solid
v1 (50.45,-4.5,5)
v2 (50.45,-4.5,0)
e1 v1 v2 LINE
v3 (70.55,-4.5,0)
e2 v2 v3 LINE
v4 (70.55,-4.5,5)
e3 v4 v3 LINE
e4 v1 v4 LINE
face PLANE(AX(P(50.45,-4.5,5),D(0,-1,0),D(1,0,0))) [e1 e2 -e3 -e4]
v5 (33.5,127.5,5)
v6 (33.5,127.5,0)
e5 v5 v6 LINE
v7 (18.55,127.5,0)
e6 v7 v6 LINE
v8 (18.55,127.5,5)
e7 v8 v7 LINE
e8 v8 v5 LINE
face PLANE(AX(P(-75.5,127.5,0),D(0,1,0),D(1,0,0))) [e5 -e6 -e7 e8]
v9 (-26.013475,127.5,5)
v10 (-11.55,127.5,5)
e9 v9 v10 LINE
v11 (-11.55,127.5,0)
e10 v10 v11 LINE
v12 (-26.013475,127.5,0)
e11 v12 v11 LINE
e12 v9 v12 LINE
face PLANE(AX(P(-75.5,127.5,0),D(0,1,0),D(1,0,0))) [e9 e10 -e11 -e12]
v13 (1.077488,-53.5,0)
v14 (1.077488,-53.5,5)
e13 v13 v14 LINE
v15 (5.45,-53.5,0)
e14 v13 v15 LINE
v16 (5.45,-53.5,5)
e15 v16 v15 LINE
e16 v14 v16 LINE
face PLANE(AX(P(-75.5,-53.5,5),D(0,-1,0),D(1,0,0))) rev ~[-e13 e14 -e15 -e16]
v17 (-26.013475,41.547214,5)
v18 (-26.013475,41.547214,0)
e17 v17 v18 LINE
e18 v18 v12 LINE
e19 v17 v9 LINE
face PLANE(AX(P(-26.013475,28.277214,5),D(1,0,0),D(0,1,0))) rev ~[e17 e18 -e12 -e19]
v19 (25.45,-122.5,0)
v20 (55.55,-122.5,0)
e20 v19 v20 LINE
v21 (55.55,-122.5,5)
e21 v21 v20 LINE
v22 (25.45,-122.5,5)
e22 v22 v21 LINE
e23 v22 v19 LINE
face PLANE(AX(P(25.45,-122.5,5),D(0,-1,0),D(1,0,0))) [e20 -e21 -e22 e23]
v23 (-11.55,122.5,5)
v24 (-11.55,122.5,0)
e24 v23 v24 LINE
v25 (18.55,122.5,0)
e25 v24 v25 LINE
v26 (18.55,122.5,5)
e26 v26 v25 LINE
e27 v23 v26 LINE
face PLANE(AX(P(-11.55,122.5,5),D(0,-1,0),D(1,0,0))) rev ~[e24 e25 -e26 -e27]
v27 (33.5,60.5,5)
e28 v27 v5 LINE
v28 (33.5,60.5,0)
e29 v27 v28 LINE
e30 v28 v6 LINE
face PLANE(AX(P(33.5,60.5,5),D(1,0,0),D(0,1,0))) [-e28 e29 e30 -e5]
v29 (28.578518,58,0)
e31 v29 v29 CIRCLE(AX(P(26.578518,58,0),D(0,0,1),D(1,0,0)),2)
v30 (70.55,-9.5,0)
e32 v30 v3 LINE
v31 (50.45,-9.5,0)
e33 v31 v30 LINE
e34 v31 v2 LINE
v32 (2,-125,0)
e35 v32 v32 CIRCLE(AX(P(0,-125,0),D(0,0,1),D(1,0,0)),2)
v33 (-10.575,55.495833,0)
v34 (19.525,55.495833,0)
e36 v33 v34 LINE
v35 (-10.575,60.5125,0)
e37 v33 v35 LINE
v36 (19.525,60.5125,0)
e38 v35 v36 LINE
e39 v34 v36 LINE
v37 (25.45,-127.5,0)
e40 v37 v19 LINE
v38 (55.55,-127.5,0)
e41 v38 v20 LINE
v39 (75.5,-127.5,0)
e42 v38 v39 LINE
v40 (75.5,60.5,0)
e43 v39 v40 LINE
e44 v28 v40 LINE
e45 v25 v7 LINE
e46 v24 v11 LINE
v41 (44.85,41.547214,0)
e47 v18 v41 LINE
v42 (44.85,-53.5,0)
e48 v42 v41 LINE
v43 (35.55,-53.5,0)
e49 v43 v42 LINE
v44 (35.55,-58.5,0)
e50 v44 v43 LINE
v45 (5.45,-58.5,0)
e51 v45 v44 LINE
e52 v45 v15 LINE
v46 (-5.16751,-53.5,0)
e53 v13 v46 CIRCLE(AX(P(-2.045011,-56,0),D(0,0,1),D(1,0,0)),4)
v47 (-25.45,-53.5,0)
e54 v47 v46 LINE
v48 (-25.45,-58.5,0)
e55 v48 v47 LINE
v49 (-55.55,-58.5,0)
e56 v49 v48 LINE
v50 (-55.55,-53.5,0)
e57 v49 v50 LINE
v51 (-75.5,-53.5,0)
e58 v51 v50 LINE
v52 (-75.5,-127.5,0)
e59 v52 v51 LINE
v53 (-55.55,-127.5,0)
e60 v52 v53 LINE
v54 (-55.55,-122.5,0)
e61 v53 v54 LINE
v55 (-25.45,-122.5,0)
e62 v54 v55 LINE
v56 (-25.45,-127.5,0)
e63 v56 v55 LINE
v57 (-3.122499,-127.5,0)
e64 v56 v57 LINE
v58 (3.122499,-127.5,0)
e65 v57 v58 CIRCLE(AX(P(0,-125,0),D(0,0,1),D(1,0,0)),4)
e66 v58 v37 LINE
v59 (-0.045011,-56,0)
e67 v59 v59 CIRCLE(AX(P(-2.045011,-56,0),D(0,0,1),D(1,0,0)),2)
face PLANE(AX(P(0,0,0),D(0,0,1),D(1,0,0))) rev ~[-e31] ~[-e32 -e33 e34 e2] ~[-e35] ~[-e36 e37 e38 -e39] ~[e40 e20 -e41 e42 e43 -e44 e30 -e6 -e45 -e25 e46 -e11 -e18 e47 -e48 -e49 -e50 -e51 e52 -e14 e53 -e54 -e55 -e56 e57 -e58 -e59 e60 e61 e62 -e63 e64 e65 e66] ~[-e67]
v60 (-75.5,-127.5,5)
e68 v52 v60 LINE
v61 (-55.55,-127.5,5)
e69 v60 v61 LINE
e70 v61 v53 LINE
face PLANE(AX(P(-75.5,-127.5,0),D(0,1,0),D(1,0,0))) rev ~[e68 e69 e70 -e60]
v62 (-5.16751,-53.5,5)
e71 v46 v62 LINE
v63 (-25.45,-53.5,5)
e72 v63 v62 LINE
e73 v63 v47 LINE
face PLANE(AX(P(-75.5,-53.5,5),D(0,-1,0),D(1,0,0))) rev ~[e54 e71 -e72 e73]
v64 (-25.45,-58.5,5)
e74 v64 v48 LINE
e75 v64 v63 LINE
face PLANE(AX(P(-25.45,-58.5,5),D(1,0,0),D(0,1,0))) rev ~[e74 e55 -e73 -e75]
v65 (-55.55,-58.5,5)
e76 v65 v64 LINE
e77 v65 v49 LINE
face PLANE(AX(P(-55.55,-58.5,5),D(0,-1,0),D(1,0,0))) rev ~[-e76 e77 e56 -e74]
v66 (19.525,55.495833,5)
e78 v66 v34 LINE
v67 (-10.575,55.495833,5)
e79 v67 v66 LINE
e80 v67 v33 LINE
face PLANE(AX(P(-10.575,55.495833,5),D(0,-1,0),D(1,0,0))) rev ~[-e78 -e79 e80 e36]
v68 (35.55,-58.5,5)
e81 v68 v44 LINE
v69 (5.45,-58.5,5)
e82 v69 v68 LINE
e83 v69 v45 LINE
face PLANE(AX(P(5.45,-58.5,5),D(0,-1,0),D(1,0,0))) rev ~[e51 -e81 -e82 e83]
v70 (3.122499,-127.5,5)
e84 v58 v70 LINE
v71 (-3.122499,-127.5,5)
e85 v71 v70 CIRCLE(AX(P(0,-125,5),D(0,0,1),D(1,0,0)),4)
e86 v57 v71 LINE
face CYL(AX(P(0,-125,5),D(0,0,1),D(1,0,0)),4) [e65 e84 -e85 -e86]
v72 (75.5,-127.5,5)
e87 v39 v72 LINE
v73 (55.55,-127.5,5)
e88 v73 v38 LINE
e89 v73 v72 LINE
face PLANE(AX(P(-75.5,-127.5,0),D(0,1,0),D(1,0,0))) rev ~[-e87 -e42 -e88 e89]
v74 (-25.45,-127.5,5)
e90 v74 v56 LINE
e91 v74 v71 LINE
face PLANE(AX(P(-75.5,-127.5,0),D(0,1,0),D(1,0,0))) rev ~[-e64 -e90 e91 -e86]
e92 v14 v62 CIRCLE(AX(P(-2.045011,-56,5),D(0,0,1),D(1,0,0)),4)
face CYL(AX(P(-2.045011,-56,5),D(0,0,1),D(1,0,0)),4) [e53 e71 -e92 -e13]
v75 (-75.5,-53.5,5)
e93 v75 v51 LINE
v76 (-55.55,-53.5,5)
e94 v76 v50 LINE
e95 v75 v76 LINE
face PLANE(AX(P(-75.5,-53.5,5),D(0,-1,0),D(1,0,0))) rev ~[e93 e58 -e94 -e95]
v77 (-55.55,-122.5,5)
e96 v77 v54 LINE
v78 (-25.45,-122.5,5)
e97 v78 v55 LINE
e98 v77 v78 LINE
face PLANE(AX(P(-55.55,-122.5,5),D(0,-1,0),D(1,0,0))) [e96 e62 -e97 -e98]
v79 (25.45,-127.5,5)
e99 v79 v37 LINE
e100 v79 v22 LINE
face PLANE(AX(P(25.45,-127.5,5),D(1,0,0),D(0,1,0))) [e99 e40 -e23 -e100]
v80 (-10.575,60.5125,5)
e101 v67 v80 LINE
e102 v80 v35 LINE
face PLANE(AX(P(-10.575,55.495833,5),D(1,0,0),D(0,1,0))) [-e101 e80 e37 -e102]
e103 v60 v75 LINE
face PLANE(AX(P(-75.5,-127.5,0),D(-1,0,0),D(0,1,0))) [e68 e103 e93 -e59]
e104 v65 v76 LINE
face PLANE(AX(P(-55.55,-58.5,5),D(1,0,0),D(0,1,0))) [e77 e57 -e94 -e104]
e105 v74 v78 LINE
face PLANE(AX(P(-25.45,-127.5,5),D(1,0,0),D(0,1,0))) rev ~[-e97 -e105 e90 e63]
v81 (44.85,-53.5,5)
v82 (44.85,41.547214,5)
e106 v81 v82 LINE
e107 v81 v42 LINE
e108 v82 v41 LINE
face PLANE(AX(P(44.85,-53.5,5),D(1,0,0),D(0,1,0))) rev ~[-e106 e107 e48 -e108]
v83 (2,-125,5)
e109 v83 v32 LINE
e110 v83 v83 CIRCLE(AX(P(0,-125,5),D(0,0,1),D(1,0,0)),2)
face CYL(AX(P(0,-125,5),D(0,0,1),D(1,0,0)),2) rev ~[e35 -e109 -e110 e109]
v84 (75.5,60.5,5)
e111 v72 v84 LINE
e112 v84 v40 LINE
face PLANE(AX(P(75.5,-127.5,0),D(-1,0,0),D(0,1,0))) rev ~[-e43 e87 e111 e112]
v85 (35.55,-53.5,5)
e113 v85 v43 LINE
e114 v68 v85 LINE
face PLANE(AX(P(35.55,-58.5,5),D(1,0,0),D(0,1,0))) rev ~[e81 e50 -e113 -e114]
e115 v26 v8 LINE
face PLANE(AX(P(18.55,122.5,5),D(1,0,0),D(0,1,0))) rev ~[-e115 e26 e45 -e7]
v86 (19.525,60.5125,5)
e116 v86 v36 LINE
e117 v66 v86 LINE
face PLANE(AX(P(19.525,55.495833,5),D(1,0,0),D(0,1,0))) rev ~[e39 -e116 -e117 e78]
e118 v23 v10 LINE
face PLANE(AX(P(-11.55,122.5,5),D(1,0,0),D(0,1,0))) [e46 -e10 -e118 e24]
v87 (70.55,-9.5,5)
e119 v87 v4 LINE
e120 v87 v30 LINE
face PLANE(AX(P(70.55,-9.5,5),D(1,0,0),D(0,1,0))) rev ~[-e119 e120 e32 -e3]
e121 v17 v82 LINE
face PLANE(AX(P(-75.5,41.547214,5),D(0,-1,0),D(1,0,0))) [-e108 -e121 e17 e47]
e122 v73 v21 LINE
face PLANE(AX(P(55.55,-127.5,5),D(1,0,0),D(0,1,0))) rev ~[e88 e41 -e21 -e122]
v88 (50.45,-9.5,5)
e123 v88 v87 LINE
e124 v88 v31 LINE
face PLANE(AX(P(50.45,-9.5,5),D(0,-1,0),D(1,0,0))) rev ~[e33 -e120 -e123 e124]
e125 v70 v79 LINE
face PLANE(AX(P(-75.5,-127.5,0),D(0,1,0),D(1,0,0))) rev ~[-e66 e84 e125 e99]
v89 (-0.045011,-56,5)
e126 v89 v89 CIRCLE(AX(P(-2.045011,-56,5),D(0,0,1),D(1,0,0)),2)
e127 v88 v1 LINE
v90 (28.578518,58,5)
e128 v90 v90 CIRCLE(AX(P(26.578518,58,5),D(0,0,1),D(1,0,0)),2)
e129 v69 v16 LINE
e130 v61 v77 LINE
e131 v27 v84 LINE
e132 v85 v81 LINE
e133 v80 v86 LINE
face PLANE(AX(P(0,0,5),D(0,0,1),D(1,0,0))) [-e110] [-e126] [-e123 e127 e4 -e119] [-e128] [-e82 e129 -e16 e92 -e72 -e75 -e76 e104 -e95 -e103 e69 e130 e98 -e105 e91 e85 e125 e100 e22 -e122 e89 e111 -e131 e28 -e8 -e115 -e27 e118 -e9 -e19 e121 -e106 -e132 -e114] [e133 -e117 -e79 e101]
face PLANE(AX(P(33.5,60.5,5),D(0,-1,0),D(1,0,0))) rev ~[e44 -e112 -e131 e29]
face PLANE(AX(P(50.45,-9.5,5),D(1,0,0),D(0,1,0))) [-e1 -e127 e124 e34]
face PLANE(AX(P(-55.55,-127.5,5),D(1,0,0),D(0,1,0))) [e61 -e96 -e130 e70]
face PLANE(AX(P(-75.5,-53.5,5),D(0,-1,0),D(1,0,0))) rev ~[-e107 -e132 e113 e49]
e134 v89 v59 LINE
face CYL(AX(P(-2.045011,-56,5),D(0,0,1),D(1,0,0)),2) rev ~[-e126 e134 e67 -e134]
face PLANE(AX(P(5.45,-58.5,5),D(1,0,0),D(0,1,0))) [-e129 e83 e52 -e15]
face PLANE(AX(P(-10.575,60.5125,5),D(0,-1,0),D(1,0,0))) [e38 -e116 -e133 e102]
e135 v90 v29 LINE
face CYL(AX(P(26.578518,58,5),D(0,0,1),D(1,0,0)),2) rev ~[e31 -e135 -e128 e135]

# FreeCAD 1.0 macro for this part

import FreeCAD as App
import Part
import Sketcher

doc = App.newDocument("Part")
body = doc.addObject("PartDesign::Body", "Body")

# Sketch on XY plane
sketch1 = body.newObject("Sketcher::SketchObject", "Sketch")
sketch1.AttachmentSupport = (doc.getObject("XY_Plane"), [""])
sketch1.MapMode = "FlatFace"
sketch1.addGeometry([
    Part.LineSegment(App.Vector(-76, 128, 0), App.Vector(-76, -128, 0)),
    Part.LineSegment(App.Vector(-76, -128, 0), App.Vector(76, -128, 0)),
    Part.LineSegment(App.Vector(76, -128, 0), App.Vector(76, 128, 0)),
    Part.LineSegment(App.Vector(76, 128, 0), App.Vector(-76, 128, 0)),
], False)
sketch1.addConstraint([
    Sketcher.Constraint("Coincident", 0, 2, 1, 1),
    Sketcher.Constraint("Coincident", 1, 2, 2, 1),
    Sketcher.Constraint("Coincident", 2, 2, 3, 1),
    Sketcher.Constraint("Coincident", 3, 2, 0, 1),
    Sketcher.Constraint("Vertical", 0),
    Sketcher.Constraint("Horizontal", 1),
    Sketcher.Constraint("Vertical", 2),
    Sketcher.Constraint("Horizontal", 3),
    Sketcher.Constraint("Symmetric", 0, 2, 2, 2, -1, 1),
    Sketcher.Constraint("DistanceX", 1, 1, 1, 2, 151.0),
    Sketcher.Constraint("DistanceY", 0, 2, 0, 1, 255.0),
])
pad1 = body.newObject("PartDesign::Pad", "Pad")
pad1.Profile = sketch1
pad1.Length = 5

# Sketch on XY plane
sketch2 = body.newObject("Sketcher::SketchObject", "Sketch001")
sketch2.AttachmentSupport = (doc.getObject("XY_Plane"), [""])
sketch2.MapMode = "FlatFace"
sketch2.AttachmentOffset = App.Placement(App.Vector(0, 0, 5), App.Rotation())
sketch2.addGeometry([
    Part.LineSegment(App.Vector(-76, 128, 0), App.Vector(-76, 28, 0)),
    Part.LineSegment(App.Vector(-76, 28, 0), App.Vector(-26, 28, 0)),
    Part.LineSegment(App.Vector(-26, 28, 0), App.Vector(-26, 128, 0)),
    Part.LineSegment(App.Vector(-26, 128, 0), App.Vector(-76, 128, 0)),
], False)
sketch2.addConstraint([
    Sketcher.Constraint("Coincident", 0, 2, 1, 1),
    Sketcher.Constraint("Coincident", 1, 2, 2, 1),
    Sketcher.Constraint("Coincident", 2, 2, 3, 1),
    Sketcher.Constraint("Coincident", 3, 2, 0, 1),
    Sketcher.Constraint("Vertical", 0),
    Sketcher.Constraint("Horizontal", 1),
    Sketcher.Constraint("Vertical", 2),
    Sketcher.Constraint("Horizontal", 3),
    Sketcher.Constraint("DistanceX", 0, 2, -1, 1, 75.5),
    Sketcher.Constraint("DistanceY", -1, 1, 2, 2, 127.5),
    Sketcher.Constraint("DistanceX", 1, 1, 1, 2, 49.486525),
    Sketcher.Constraint("DistanceY", 0, 2, 0, 1, 99.222786),
])
pocket1 = body.newObject("PartDesign::Pocket", "Pocket")
pocket1.Profile = sketch2
pocket1.Length = 5

# Sketch on XY plane
sketch3 = body.newObject("Sketcher::SketchObject", "Sketch002")
sketch3.AttachmentSupport = (doc.getObject("XY_Plane"), [""])
sketch3.MapMode = "FlatFace"
sketch3.AttachmentOffset = App.Placement(App.Vector(0, 0, 5), App.Rotation())
sketch3.addGeometry([
    Part.LineSegment(App.Vector(34, 128, 0), App.Vector(34, 60, 0)),
    Part.LineSegment(App.Vector(34, 60, 0), App.Vector(76, 60, 0)),
    Part.LineSegment(App.Vector(76, 60, 0), App.Vector(76, 128, 0)),
    Part.LineSegment(App.Vector(76, 128, 0), App.Vector(34, 128, 0)),
], False)
sketch3.addConstraint([
    Sketcher.Constraint("Coincident", 0, 2, 1, 1),
    Sketcher.Constraint("Coincident", 1, 2, 2, 1),
    Sketcher.Constraint("Coincident", 2, 2, 3, 1),
    Sketcher.Constraint("Coincident", 3, 2, 0, 1),
    Sketcher.Constraint("Vertical", 0),
    Sketcher.Constraint("Horizontal", 1),
    Sketcher.Constraint("Vertical", 2),
    Sketcher.Constraint("Horizontal", 3),
    Sketcher.Constraint("DistanceX", 1, 1, 1, 2, 42.0),
    Sketcher.Constraint("DistanceY", 0, 2, 0, 1, 67.0),
    Sketcher.Constraint("DistanceX", -1, 1, 0, 2, 33.5),
    Sketcher.Constraint("DistanceY", -1, 1, 0, 2, 60.5),
])
pocket2 = body.newObject("PartDesign::Pocket", "Pocket001")
pocket2.Profile = sketch3
pocket2.Length = 5

# Sketch on XY plane
sketch4 = body.newObject("Sketcher::SketchObject", "Sketch003")
sketch4.AttachmentSupport = (doc.getObject("XY_Plane"), [""])
sketch4.MapMode = "FlatFace"
sketch4.AttachmentOffset = App.Placement(App.Vector(0, 0, 5), App.Rotation())
sketch4.addGeometry([
    Part.LineSegment(App.Vector(-76, 42, 0), App.Vector(-76, -53, 0)),
    Part.LineSegment(App.Vector(-76, -53, 0), App.Vector(45, -53, 0)),
    Part.LineSegment(App.Vector(45, -53, 0), App.Vector(45, 42, 0)),
    Part.LineSegment(App.Vector(45, 42, 0), App.Vector(-76, 42, 0)),
], False)
sketch4.addConstraint([
    Sketcher.Constraint("Coincident", 0, 2, 1, 1),
    Sketcher.Constraint("Coincident", 1, 2, 2, 1),
    Sketcher.Constraint("Coincident", 2, 2, 3, 1),
    Sketcher.Constraint("Coincident", 3, 2, 0, 1),
    Sketcher.Constraint("Vertical", 0),
    Sketcher.Constraint("Horizontal", 1),
    Sketcher.Constraint("Vertical", 2),
    Sketcher.Constraint("Horizontal", 3),
    Sketcher.Constraint("DistanceX", 1, 1, 1, 2, 120.35),
    Sketcher.Constraint("DistanceX", 0, 2, -1, 1, 75.5),
    Sketcher.Constraint("DistanceY", 0, 2, -1, 1, 53.5),
    Sketcher.Constraint("DistanceY", 0, 2, 0, 1, 95.047214),
])
pocket3 = body.newObject("PartDesign::Pocket", "Pocket002")
pocket3.Profile = sketch4
pocket3.Length = 5

# Sketch on XY plane
sketch5 = body.newObject("Sketcher::SketchObject", "Sketch004")
sketch5.AttachmentSupport = (doc.getObject("XY_Plane"), [""])
sketch5.MapMode = "FlatFace"
sketch5.AttachmentOffset = App.Placement(App.Vector(0, 0, 5), App.Rotation())
sketch5.addGeometry([
    Part.LineSegment(App.Vector(25, -122, 0), App.Vector(25, -128, 0)),  # 0
    Part.LineSegment(App.Vector(25, -128, 0), App.Vector(56, -128, 0)),  # 1
    Part.LineSegment(App.Vector(56, -128, 0), App.Vector(56, -122, 0)),  # 2
    Part.LineSegment(App.Vector(56, -122, 0), App.Vector(25, -122, 0)),  # 3
    Part.LineSegment(App.Vector(-56, -122, 0), App.Vector(-56, -128, 0)),  # 4
    Part.LineSegment(App.Vector(-56, -128, 0), App.Vector(-25, -128, 0)),  # 5
    Part.LineSegment(App.Vector(-25, -128, 0), App.Vector(-25, -122, 0)),  # 6
    Part.LineSegment(App.Vector(-25, -122, 0), App.Vector(-56, -122, 0)),  # 7
    Part.LineSegment(App.Vector(5, -54, 0), App.Vector(5, -58, 0)),  # 8
    Part.LineSegment(App.Vector(5, -58, 0), App.Vector(36, -58, 0)),  # 9
    Part.LineSegment(App.Vector(36, -58, 0), App.Vector(36, -54, 0)),  # 10
    Part.LineSegment(App.Vector(36, -54, 0), App.Vector(5, -54, 0)),  # 11
    Part.LineSegment(App.Vector(-56, -54, 0), App.Vector(-56, -58, 0)),  # 12
    Part.LineSegment(App.Vector(-56, -58, 0), App.Vector(-25, -58, 0)),  # 13
    Part.LineSegment(App.Vector(-25, -58, 0), App.Vector(-25, -54, 0)),  # 14
    Part.LineSegment(App.Vector(-25, -54, 0), App.Vector(-56, -54, 0)),  # 15
    Part.LineSegment(App.Vector(50, -4, 0), App.Vector(50, -10, 0)),  # 16
    Part.LineSegment(App.Vector(50, -10, 0), App.Vector(71, -10, 0)),  # 17
    Part.LineSegment(App.Vector(71, -10, 0), App.Vector(71, -4, 0)),  # 18
    Part.LineSegment(App.Vector(71, -4, 0), App.Vector(50, -4, 0)),  # 19
    Part.LineSegment(App.Vector(-11, 61, 0), App.Vector(-11, 55, 0)),  # 20
    Part.LineSegment(App.Vector(-11, 55, 0), App.Vector(20, 55, 0)),  # 21
    Part.LineSegment(App.Vector(20, 55, 0), App.Vector(20, 61, 0)),  # 22
    Part.LineSegment(App.Vector(20, 61, 0), App.Vector(-11, 61, 0)),  # 23
    Part.LineSegment(App.Vector(-12, 128, 0), App.Vector(-12, 122, 0)),  # 24
    Part.LineSegment(App.Vector(-12, 122, 0), App.Vector(19, 122, 0)),  # 25
    Part.LineSegment(App.Vector(19, 122, 0), App.Vector(19, 128, 0)),  # 26
    Part.LineSegment(App.Vector(19, 128, 0), App.Vector(-12, 128, 0)),  # 27
], False)
sketch5.addConstraint([
    Sketcher.Constraint("Coincident", 0, 2, 1, 1),
    Sketcher.Constraint("Coincident", 1, 2, 2, 1),
    Sketcher.Constraint("Coincident", 2, 2, 3, 1),
    Sketcher.Constraint("Coincident", 3, 2, 0, 1),
    Sketcher.Constraint("Coincident", 4, 2, 5, 1),
    Sketcher.Constraint("Coincident", 5, 2, 6, 1),
    Sketcher.Constraint("Coincident", 6, 2, 7, 1),
    Sketcher.Constraint("Coincident", 7, 2, 4, 1),
    Sketcher.Constraint("Coincident", 8, 2, 9, 1),
    Sketcher.Constraint("Coincident", 9, 2, 10, 1),
    Sketcher.Constraint("Coincident", 10, 2, 11, 1),
    Sketcher.Constraint("Coincident", 11, 2, 8, 1),
    Sketcher.Constraint("Coincident", 12, 2, 13, 1),
    Sketcher.Constraint("Coincident", 13, 2, 14, 1),
    Sketcher.Constraint("Coincident", 14, 2, 15, 1),
    Sketcher.Constraint("Coincident", 15, 2, 12, 1),
    Sketcher.Constraint("Coincident", 16, 2, 17, 1),
    Sketcher.Constraint("Coincident", 17, 2, 18, 1),
    Sketcher.Constraint("Coincident", 18, 2, 19, 1),
    Sketcher.Constraint("Coincident", 19, 2, 16, 1),
    Sketcher.Constraint("Coincident", 20, 2, 21, 1),
    Sketcher.Constraint("Coincident", 21, 2, 22, 1),
    Sketcher.Constraint("Coincident", 22, 2, 23, 1),
    Sketcher.Constraint("Coincident", 23, 2, 20, 1),
    Sketcher.Constraint("Coincident", 24, 2, 25, 1),
    Sketcher.Constraint("Coincident", 25, 2, 26, 1),
    Sketcher.Constraint("Coincident", 26, 2, 27, 1),
    Sketcher.Constraint("Coincident", 27, 2, 24, 1),
    Sketcher.Constraint("Vertical", 0),
    Sketcher.Constraint("Horizontal", 1),
    Sketcher.Constraint("Vertical", 2),
    Sketcher.Constraint("Horizontal", 3),
    Sketcher.Constraint("Vertical", 4),
    Sketcher.Constraint("Horizontal", 5),
    Sketcher.Constraint("Vertical", 6),
    Sketcher.Constraint("Horizontal", 7),
    Sketcher.Constraint("Vertical", 8),
    Sketcher.Constraint("Horizontal", 9),
    Sketcher.Constraint("Vertical", 10),
    Sketcher.Constraint("Horizontal", 11),
    Sketcher.Constraint("Vertical", 12),
    Sketcher.Constraint("Horizontal", 13),
    Sketcher.Constraint("Vertical", 14),
    Sketcher.Constraint("Horizontal", 15),
    Sketcher.Constraint("Vertical", 16),
    Sketcher.Constraint("Horizontal", 17),
    Sketcher.Constraint("Vertical", 18),
    Sketcher.Constraint("Horizontal", 19),
    Sketcher.Constraint("Vertical", 20),
    Sketcher.Constraint("Horizontal", 21),
    Sketcher.Constraint("Vertical", 22),
    Sketcher.Constraint("Horizontal", 23),
    Sketcher.Constraint("Vertical", 24),
    Sketcher.Constraint("Horizontal", 25),
    Sketcher.Constraint("Vertical", 26),
    Sketcher.Constraint("Horizontal", 27),
    Sketcher.Constraint("Symmetric", 1, 2, 4, 2, -2),
    Sketcher.Constraint("Symmetric", 3, 2, 6, 2, -2),
    Sketcher.Constraint("Horizontal", 9, 2, 12, 2),
    Sketcher.Constraint("Horizontal", 11, 2, 14, 2),
    Sketcher.Constraint("Vertical", 7, 2, 12, 2),
    Sketcher.Constraint("Vertical", 6, 2, 13, 2),
    Sketcher.Constraint("Equal", 7, 9),
    Sketcher.Constraint("Equal", 15, 21),
    Sketcher.Constraint("Equal", 23, 25),
    Sketcher.Constraint("Equal", 6, 8),
    Sketcher.Constraint("Equal", 14, 16),
    Sketcher.Constraint("Equal", 18, 24),
    Sketcher.Constraint("DistanceY", 0, 2, 0, 1, 5.0),
    Sketcher.Constraint("DistanceX", 1, 1, 1, 2, 30.1),
    Sketcher.Constraint("DistanceX", 17, 1, 17, 2, 20.1),
    Sketcher.Constraint("DistanceX", 4, 2, 0, 2, 81.0),
    Sketcher.Constraint("DistanceX", 8, 2, 3, 2, 20.0),
    Sketcher.Constraint("DistanceY", 3, 2, 8, 2, 64.0),
    Sketcher.Constraint("DistanceY", 10, 2, 16, 2, 44.0),
    Sketcher.Constraint("DistanceX", 11, 2, 16, 2, 45.0),
    Sketcher.Constraint("DistanceX", 24, 2, 19, 2, 62.0),
    Sketcher.Constraint("DistanceY", 19, 2, 24, 2, 127.0),
    Sketcher.Constraint("DistanceY", 0, 2, -1, 1, 127.5),
    Sketcher.Constraint("DistanceX", 20, 2, -1, 1, 10.575),
    Sketcher.Constraint("DistanceY", -1, 1, 22, 2, 60.5125),
    Sketcher.Constraint("DistanceY", 20, 2, 20, 1, 5.016667),
])
pocket4 = body.newObject("PartDesign::Pocket", "Pocket003")
pocket4.Profile = sketch5
pocket4.Length = 5

# Sketch on XY plane
sketch6 = body.newObject("Sketcher::SketchObject", "Sketch005")
sketch6.AttachmentSupport = (doc.getObject("XY_Plane"), [""])
sketch6.MapMode = "FlatFace"
sketch6.AttachmentOffset = App.Placement(App.Vector(0, 0, 5), App.Rotation())
sketch6.addGeometry([
    Part.Circle(App.Vector(0, -125, 0), App.Vector(0, 0, 1), 2),
    Part.Circle(App.Vector(-2, -56, 0), App.Vector(0, 0, 1), 2),
    Part.Circle(App.Vector(26.6, 58, 0), App.Vector(0, 0, 1), 2),
], False)
sketch6.addConstraint([
    Sketcher.Constraint("Equal", 0, 1),
    Sketcher.Constraint("Equal", 1, 2),
    Sketcher.Constraint("PointOnObject", 0, 3, -2),
    Sketcher.Constraint("Diameter", 0, 4.0),
    Sketcher.Constraint("DistanceY", 0, 3, -1, 1, 125.0),
    Sketcher.Constraint("DistanceY", 1, 3, -1, 1, 56.0),
    Sketcher.Constraint("DistanceY", -1, 1, 2, 3, 58.0),
    Sketcher.Constraint("DistanceX", 1, 3, -1, 1, 2.045011),
    Sketcher.Constraint("DistanceX", 1, 3, 2, 3, 28.623529),
])
pocket5 = body.newObject("PartDesign::Pocket", "Pocket004")
pocket5.Profile = sketch6
pocket5.Length = 10

# Sketch on XY plane
sketch7 = body.newObject("Sketcher::SketchObject", "Sketch006")
sketch7.AttachmentSupport = (doc.getObject("XY_Plane"), [""])
sketch7.MapMode = "FlatFace"
sketch7.AttachmentOffset = App.Placement(App.Vector(0, 0, 5), App.Rotation())
sketch7.addGeometry([
    Part.Circle(App.Vector(0, -125, 0), App.Vector(0, 0, 1), 4),
    Part.Circle(App.Vector(0, -125, 0), App.Vector(0, 0, 1), 2),
    Part.Circle(App.Vector(-2, -56, 0), App.Vector(0, 0, 1), 4),
    Part.Circle(App.Vector(-2, -56, 0), App.Vector(0, 0, 1), 2),
], False)
sketch7.addConstraint([
    Sketcher.Constraint("Coincident", 1, 3, 0, 3),
    Sketcher.Constraint("Coincident", 3, 3, 2, 3),
    Sketcher.Constraint("Equal", 0, 2),
    Sketcher.Constraint("Equal", 1, 3),
    Sketcher.Constraint("PointOnObject", 0, 3, -2),
    Sketcher.Constraint("Diameter", 0, 8.0),
    Sketcher.Constraint("Diameter", 1, 4.0),
    Sketcher.Constraint("DistanceY", 0, 3, -1, 1, 125.0),
    Sketcher.Constraint("DistanceY", 2, 3, -1, 1, 56.0),
    Sketcher.Constraint("DistanceX", 2, 3, -1, 1, 2.045011),
])
pad2 = body.newObject("PartDesign::Pad", "Pad001")
pad2.Profile = sketch7
pad2.Length = 5
pad2.Reversed = True

doc.recompute()
